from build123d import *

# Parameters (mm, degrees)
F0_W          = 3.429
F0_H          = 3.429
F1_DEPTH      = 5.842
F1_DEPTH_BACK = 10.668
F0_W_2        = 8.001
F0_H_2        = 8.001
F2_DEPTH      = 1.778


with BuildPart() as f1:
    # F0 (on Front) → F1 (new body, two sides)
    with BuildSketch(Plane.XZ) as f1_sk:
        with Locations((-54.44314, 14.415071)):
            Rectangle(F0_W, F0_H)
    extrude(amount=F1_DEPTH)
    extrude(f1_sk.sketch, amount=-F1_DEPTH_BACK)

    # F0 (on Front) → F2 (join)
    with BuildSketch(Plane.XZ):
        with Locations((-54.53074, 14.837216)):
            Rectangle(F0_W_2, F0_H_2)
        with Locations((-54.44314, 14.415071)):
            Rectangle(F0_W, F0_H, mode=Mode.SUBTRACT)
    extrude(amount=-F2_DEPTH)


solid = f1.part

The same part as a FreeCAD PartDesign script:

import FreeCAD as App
import Part
import Sketcher
from FreeCAD import Vector
Q = App.Units.Quantity


def add_polygon(sketch, points):
    """Adds a closed chain of lines whose ends are joined by coincident constraints."""
    first, n = sketch.GeometryCount, len(points)
    for a, b in zip(points, points[1:] + points[:1]):
        sketch.addGeometry(Part.LineSegment(App.Vector(*a, 0), App.Vector(*b, 0)), False)
    for i in range(n):
        sketch.addConstraint(Sketcher.Constraint("Coincident", first + i, 2, first + (i + 1) % n, 1))

doc = App.newDocument("Part")
body = doc.addObject("PartDesign::Body", "Body")

# Sketch on XZ plane
sketch1 = body.newObject("Sketcher::SketchObject", "Sketch")
sketch1.AttachmentSupport = (doc.getObject("XZ_Plane"), [""])
sketch1.MapMode = "FlatFace"
add_polygon(sketch1, [(-56.2, 16.1), (-56.2, 12.7), (-52.7, 12.7), (-52.7, 16.1)])  # lines 0-3
sketch1.addConstraint(Sketcher.Constraint("Vertical", 0))
sketch1.addConstraint(Sketcher.Constraint("Horizontal", 1))
sketch1.addConstraint(Sketcher.Constraint("Vertical", 2))
sketch1.addConstraint(Sketcher.Constraint("Horizontal", 3))
sketch1.addConstraint(Sketcher.Constraint("Equal", 3, 0))
sketch1.addConstraint(Sketcher.Constraint("DistanceX", 1, 1, 1, 2, Q("0.135 in")))
sketch1.addConstraint(Sketcher.Constraint("DistanceX", 0, 2, -1, 1, Q("56.15764 mm")))
sketch1.addConstraint(Sketcher.Constraint("DistanceY", -1, 1, 0, 2, Q("12.700571 mm")))
pad1 = body.newObject("PartDesign::Pad", "Pad")
pad1.Profile = sketch1
pad1.Type = "TwoLengths"
pad1.Length = Q("0.23 in")
pad1.Length2 = Q("0.42 in")

# Sketch on XZ plane
sketch2 = body.newObject("Sketcher::SketchObject", "Sketch001")
sketch2.AttachmentSupport = (doc.getObject("XZ_Plane"), [""])
sketch2.MapMode = "FlatFace"
add_polygon(sketch2, [(-58.5, 18.8), (-58.5, 10.8), (-50.5, 10.8), (-50.5, 18.8)])  # lines 0-3
add_polygon(sketch2, [(-52.7, 12.7), (-56.2, 12.7), (-56.2, 16.1), (-52.7, 16.1)])  # lines 4-7
sketch2.addConstraint(Sketcher.Constraint("Vertical", 0))
sketch2.addConstraint(Sketcher.Constraint("Horizontal", 1))
sketch2.addConstraint(Sketcher.Constraint("Vertical", 2))
sketch2.addConstraint(Sketcher.Constraint("Horizontal", 3))
sketch2.addConstraint(Sketcher.Constraint("Horizontal", 4))
sketch2.addConstraint(Sketcher.Constraint("Vertical", 5))
sketch2.addConstraint(Sketcher.Constraint("Horizontal", 6))
sketch2.addConstraint(Sketcher.Constraint("Vertical", 7))
sketch2.addConstraint(Sketcher.Constraint("Equal", 3, 0))
sketch2.addConstraint(Sketcher.Constraint("Equal", 6, 5))
sketch2.addConstraint(Sketcher.Constraint("DistanceX", 1, 1, 1, 2, Q("0.315 in")))
sketch2.addConstraint(Sketcher.Constraint("DistanceX", 4, 2, 4, 1, Q("0.135 in")))
sketch2.addConstraint(Sketcher.Constraint("DistanceX", 0, 2, 4, 2, Q("2.3736 mm")))
sketch2.addConstraint(Sketcher.Constraint("DistanceX", 0, 2, -1, 1, Q("58.53124 mm")))
sketch2.addConstraint(Sketcher.Constraint("DistanceY", -1, 1, 4, 2, Q("12.700571 mm")))
sketch2.addConstraint(Sketcher.Constraint("DistanceY", -1, 1, 0, 2, Q("10.836716 mm")))
pad2 = body.newObject("PartDesign::Pad", "Pad001")
pad2.Profile = sketch2
pad2.Length = Q("0.07 in")
pad2.Reversed = True

doc.recompute()
